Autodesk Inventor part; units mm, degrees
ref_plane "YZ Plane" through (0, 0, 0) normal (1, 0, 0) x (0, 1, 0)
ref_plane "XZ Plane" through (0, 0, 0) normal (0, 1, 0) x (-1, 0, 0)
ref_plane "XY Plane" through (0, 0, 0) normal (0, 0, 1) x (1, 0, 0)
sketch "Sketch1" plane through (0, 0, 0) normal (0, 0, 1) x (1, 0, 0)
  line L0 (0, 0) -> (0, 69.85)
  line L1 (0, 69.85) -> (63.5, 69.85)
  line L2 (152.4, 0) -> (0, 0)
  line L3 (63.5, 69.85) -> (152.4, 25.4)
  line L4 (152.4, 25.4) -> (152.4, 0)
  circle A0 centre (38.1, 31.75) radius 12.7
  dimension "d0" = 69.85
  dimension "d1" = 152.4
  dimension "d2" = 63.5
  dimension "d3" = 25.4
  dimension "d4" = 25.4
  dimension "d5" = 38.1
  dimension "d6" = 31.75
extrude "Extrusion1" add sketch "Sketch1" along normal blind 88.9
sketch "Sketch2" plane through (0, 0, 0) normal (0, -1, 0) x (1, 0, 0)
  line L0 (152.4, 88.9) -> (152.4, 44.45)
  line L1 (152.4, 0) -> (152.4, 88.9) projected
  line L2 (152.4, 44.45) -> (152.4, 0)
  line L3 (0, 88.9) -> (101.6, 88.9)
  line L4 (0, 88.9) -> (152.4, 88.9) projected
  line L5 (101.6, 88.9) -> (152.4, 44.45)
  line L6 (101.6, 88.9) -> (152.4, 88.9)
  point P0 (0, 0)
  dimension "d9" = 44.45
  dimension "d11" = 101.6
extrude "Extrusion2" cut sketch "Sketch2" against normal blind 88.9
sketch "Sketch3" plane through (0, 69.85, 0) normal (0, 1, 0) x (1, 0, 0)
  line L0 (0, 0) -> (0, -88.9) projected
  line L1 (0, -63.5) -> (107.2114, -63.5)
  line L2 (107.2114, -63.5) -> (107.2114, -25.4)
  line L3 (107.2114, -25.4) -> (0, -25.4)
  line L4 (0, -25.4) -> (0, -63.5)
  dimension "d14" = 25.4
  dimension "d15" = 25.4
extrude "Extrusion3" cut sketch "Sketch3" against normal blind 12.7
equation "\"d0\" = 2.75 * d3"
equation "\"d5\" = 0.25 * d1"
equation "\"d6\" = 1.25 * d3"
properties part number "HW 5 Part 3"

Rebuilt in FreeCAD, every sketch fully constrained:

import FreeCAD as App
import Part
import Sketcher

V = App.Vector
Q = App.Units.Quantity

doc = App.newDocument("Part")
body = doc.addObject("PartDesign::Body", "Body")

sketch1 = doc.addObject("Sketcher::SketchObject", "Sketch")
body.addObject(sketch1)
sketch1.AttachmentSupport = (doc.XY_Plane, [""])
sketch1.MapMode = "FlatFace"
sketch1.addGeometry([
    Part.LineSegment(V(0, 70, 0), V(0, 0, 0)),
    Part.LineSegment(V(0, 0, 0), V(152, 0, 0)),
    Part.LineSegment(V(152, 0, 0), V(152, 25, 0)),
    Part.LineSegment(V(152, 25, 0), V(64, 70, 0)),
    Part.LineSegment(V(64, 70, 0), V(0, 70, 0)),
    Part.Circle(V(38, 32, 0), V(0, 0, 1), 13),
], False)
sketch1.addConstraint([
    Sketcher.Constraint("Coincident", 0, 2, 1, 1),
    Sketcher.Constraint("Coincident", 1, 2, 2, 1),
    Sketcher.Constraint("Coincident", 2, 2, 3, 1),
    Sketcher.Constraint("Coincident", 3, 2, 4, 1),
    Sketcher.Constraint("Coincident", 4, 2, 0, 1),
    Sketcher.Constraint("Vertical", 0),
    Sketcher.Constraint("Horizontal", 1),
    Sketcher.Constraint("Vertical", 2),
    Sketcher.Constraint("Horizontal", 4),
    Sketcher.Constraint("Coincident", 0, 2, -1, 1),
    Sketcher.Constraint("Diameter", 5, Q("1 in")),
    Sketcher.Constraint("DistanceX", 1, 1, 1, 2, Q("6 in")),
    Sketcher.Constraint("DistanceY", 2, 1, 2, 2, Q("1 in")),
    Sketcher.Constraint("DistanceX", 4, 2, 4, 1, Q("2.5 in")),
    Sketcher.Constraint("DistanceX", 5, 3, 3, 2, Q("1 in")),
    Sketcher.Constraint("DistanceY", 0, 2, 0, 1, Q("2.75 in")),
    Sketcher.Constraint("DistanceY", 5, 3, 3, 2, Q("1.5 in")),
])
pad1 = doc.addObject("PartDesign::Pad", "Pad")
body.addObject(pad1)
pad1.Profile = sketch1
pad1.Length = Q("3.5 in")

sketch2 = doc.addObject("Sketcher::SketchObject", "Sketch001")
body.addObject(sketch2)
sketch2.AttachmentSupport = (doc.XZ_Plane, [""])
sketch2.MapMode = "FlatFace"
sketch2.addGeometry([
    Part.LineSegment(V(152, 44, 0), V(152, 89, 0)),
    Part.LineSegment(V(152, 89, 0), V(102, 89, 0)),
    Part.LineSegment(V(102, 89, 0), V(152, 44, 0)),
], False)
sketch2.addConstraint([
    Sketcher.Constraint("Coincident", 0, 2, 1, 1),
    Sketcher.Constraint("Coincident", 1, 2, 2, 1),
    Sketcher.Constraint("Coincident", 2, 2, 0, 1),
    Sketcher.Constraint("Vertical", 0),
    Sketcher.Constraint("Horizontal", 1),
    Sketcher.Constraint("DistanceX", -1, 1, 1, 2, Q("4 in")),
    Sketcher.Constraint("DistanceY", 0, 1, 0, 2, Q("1.75 in")),
    Sketcher.Constraint("DistanceX", 1, 2, 1, 1, Q("2 in")),
    Sketcher.Constraint("DistanceY", -1, 1, 2, 2, Q("1.75 in")),
])
pocket1 = doc.addObject("PartDesign::Pocket", "Pocket")
body.addObject(pocket1)
pocket1.Profile = sketch2
pocket1.Length = Q("3.5 in")

sketch3 = doc.addObject("Sketcher::SketchObject", "Sketch002")
body.addObject(sketch3)
sketch3.AttachmentSupport = (doc.XZ_Plane, [""])
sketch3.MapMode = "FlatFace"
sketch3.AttachmentOffset = App.Placement(V(0, 0, -2.75 * 25.4), App.Rotation())
sketch3.addGeometry([
    Part.LineSegment(V(107, 25, 0), V(0, 25, 0)),
    Part.LineSegment(V(0, 25, 0), V(0, 64, 0)),
    Part.LineSegment(V(0, 64, 0), V(107, 64, 0)),
    Part.LineSegment(V(107, 64, 0), V(107, 25, 0)),
], False)
sketch3.addConstraint([
    Sketcher.Constraint("Coincident", 0, 2, 1, 1),
    Sketcher.Constraint("Coincident", 1, 2, 2, 1),
    Sketcher.Constraint("Coincident", 2, 2, 3, 1),
    Sketcher.Constraint("Coincident", 3, 2, 0, 1),
    Sketcher.Constraint("Horizontal", 0),
    Sketcher.Constraint("Vertical", 1),
    Sketcher.Constraint("Horizontal", 2),
    Sketcher.Constraint("Vertical", 3),
    Sketcher.Constraint("PointOnObject", 0, 2, -2),
    Sketcher.Constraint("DistanceY", -1, 1, 0, 2, Q("1 in")),
    Sketcher.Constraint("DistanceY", 1, 1, 1, 2, Q("1.5 in")),
    Sketcher.Constraint("DistanceX", 0, 2, 0, 1, 107.2114),
])
pocket2 = doc.addObject("PartDesign::Pocket", "Pocket001")
body.addObject(pocket2)
pocket2.Profile = sketch3
pocket2.Length = Q("0.5 in")
pocket2.Reversed = True

doc.recompute()
